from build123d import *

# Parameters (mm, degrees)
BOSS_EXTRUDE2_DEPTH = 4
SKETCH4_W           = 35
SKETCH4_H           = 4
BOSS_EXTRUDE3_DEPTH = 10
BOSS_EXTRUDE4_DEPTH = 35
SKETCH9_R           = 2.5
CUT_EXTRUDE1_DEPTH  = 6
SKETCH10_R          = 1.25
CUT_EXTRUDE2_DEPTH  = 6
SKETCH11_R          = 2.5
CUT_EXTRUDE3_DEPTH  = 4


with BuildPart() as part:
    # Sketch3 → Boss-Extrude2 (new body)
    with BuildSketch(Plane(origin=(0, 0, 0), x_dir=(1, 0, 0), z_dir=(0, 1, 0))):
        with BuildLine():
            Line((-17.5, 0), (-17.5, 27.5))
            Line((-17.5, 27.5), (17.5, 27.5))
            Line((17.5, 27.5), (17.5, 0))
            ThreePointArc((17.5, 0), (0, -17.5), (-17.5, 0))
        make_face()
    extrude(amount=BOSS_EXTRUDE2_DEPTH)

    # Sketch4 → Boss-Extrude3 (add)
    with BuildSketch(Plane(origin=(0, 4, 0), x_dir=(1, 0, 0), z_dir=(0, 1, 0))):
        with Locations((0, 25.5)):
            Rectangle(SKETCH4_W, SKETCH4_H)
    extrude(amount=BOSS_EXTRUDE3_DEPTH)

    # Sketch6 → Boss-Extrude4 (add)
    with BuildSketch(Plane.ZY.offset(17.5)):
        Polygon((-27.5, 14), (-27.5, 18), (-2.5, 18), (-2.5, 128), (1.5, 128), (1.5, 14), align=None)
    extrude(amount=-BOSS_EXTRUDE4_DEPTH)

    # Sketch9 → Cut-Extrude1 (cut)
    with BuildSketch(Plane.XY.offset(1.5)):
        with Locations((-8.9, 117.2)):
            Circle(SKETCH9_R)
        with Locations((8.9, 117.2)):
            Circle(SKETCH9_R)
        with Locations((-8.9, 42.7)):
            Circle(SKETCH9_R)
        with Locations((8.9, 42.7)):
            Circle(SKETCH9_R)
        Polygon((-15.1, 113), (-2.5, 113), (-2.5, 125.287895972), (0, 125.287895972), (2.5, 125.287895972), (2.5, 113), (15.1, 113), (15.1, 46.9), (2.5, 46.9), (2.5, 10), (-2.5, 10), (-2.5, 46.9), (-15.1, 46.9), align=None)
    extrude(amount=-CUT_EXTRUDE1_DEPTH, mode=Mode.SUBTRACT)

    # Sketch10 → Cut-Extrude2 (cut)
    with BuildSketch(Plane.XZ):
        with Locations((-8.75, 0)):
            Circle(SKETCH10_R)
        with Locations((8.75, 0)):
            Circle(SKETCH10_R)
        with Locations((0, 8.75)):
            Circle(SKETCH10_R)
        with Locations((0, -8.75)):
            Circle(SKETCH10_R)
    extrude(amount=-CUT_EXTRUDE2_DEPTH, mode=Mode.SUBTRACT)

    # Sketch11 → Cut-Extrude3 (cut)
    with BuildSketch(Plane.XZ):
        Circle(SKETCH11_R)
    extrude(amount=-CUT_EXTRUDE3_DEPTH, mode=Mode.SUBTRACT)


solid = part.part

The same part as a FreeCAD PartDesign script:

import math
import FreeCAD as App
import Part
import Sketcher

V = App.Vector
Q = App.Units.Quantity

doc = App.newDocument("Part")
body = doc.addObject("PartDesign::Body", "Body")

# Sketch on XZ plane
sketch1 = doc.addObject("Sketcher::SketchObject", "Sketch")
body.addObject(sketch1)
sketch1.AttachmentSupport = (doc.XZ_Plane, [""])
sketch1.MapMode = "FlatFace"
sketch1.addGeometry([
    Part.LineSegment(V(-17.5, -27.5, 0), V(-17.5, 0, 0)),
    Part.ArcOfCircle(Part.Circle(V(0, 0, 0), V(0, 0, 1), 17.5), math.radians(0), math.radians(180)),
    Part.LineSegment(V(17.5, 0, 0), V(17.5, -27.5, 0)),
    Part.LineSegment(V(17.5, -27.5, 0), V(-17.5, -27.5, 0)),
], False)
sketch1.addConstraint([
    Sketcher.Constraint("Tangent", 0, 2, 1, 2),
    Sketcher.Constraint("Tangent", 1, 1, 2, 1),
    Sketcher.Constraint("Coincident", 2, 2, 3, 1),
    Sketcher.Constraint("Coincident", 3, 2, 0, 1),
    Sketcher.Constraint("Vertical", 0),
    Sketcher.Constraint("Vertical", 2),
    Sketcher.Constraint("Horizontal", 3),
    Sketcher.Constraint("Coincident", 1, 3, -1, 1),
    Sketcher.Constraint("Radius", 1, Q("17.5 mm")),
    Sketcher.Constraint("DistanceY", 0, 1, 0, 2, Q("27.5 mm")),
])
pad1 = doc.addObject("PartDesign::Pad", "Pad")
body.addObject(pad1)
pad1.Profile = sketch1
pad1.Length = 4
pad1.Reversed = True

# Sketch on XZ plane
sketch2 = doc.addObject("Sketcher::SketchObject", "Sketch001")
body.addObject(sketch2)
sketch2.AttachmentSupport = (doc.XZ_Plane, [""])
sketch2.MapMode = "FlatFace"
sketch2.AttachmentOffset = App.Placement(V(0, 0, -4), App.Rotation())
sketch2.addGeometry([
    Part.LineSegment(V(-17.5, -27.5, 0), V(-17.5, -23.5, 0)),
    Part.LineSegment(V(-17.5, -23.5, 0), V(17.5, -23.5, 0)),
    Part.LineSegment(V(17.5, -23.5, 0), V(17.5, -27.5, 0)),
    Part.LineSegment(V(17.5, -27.5, 0), V(-17.5, -27.5, 0)),
], False)
sketch2.addConstraint([
    Sketcher.Constraint("Coincident", 0, 2, 1, 1),
    Sketcher.Constraint("Coincident", 1, 2, 2, 1),
    Sketcher.Constraint("Coincident", 2, 2, 3, 1),
    Sketcher.Constraint("Coincident", 3, 2, 0, 1),
    Sketcher.Constraint("Vertical", 0),
    Sketcher.Constraint("Horizontal", 1),
    Sketcher.Constraint("Vertical", 2),
    Sketcher.Constraint("Horizontal", 3),
    Sketcher.Constraint("DistanceX", 1, 1, 1, 2, Q("35 mm")),
    Sketcher.Constraint("DistanceY", 0, 1, 0, 2, Q("4 mm")),
    Sketcher.Constraint("DistanceX", 0, 2, -1, 1, Q("17.5 mm")),
    Sketcher.Constraint("DistanceY", 0, 2, -1, 1, Q("23.5 mm")),
])
pad2 = doc.addObject("PartDesign::Pad", "Pad001")
body.addObject(pad2)
pad2.Profile = sketch2
pad2.Length = 10
pad2.Reversed = True

# Sketch on YZ plane
sketch3 = doc.addObject("Sketcher::SketchObject", "Sketch002")
body.addObject(sketch3)
sketch3.AttachmentSupport = (doc.YZ_Plane, [""])
sketch3.MapMode = "FlatFace"
sketch3.AttachmentOffset = App.Placement(V(0, 0, -17.5), App.Rotation())
sketch3.addGeometry([
    Part.LineSegment(V(18, -27.5, 0), V(14, -27.5, 0)),  # 0
    Part.LineSegment(V(14, -27.5, 0), V(14, 1.5, 0)),  # 1
    Part.LineSegment(V(14, 1.5, 0), V(128, 1.5, 0)),  # 2
    Part.LineSegment(V(128, 1.5, 0), V(128, -2.5, 0)),  # 3
    Part.LineSegment(V(128, -2.5, 0), V(18, -2.5, 0)),  # 4
    Part.LineSegment(V(18, -2.5, 0), V(18, -27.5, 0)),  # 5
], False)
sketch3.addConstraint([
    Sketcher.Constraint("Coincident", 0, 2, 1, 1),
    Sketcher.Constraint("Coincident", 1, 2, 2, 1),
    Sketcher.Constraint("Coincident", 2, 2, 3, 1),
    Sketcher.Constraint("Coincident", 3, 2, 4, 1),
    Sketcher.Constraint("Coincident", 4, 2, 5, 1),
    Sketcher.Constraint("Coincident", 5, 2, 0, 1),
    Sketcher.Constraint("Horizontal", 0),
    Sketcher.Constraint("Vertical", 1),
    Sketcher.Constraint("Horizontal", 2),
    Sketcher.Constraint("Vertical", 3),
    Sketcher.Constraint("Horizontal", 4),
    Sketcher.Constraint("Vertical", 5),
    Sketcher.Constraint("Equal", 0, 3),
    Sketcher.Constraint("DistanceX", 0, 2, 0, 1, Q("4 mm")),
    Sketcher.Constraint("DistanceX", 2, 1, 2, 2, Q("114 mm")),
    Sketcher.Constraint("DistanceY", 1, 1, 1, 2, Q("29 mm")),
    Sketcher.Constraint("DistanceX", -1, 1, 0, 2, Q("14 mm")),
    Sketcher.Constraint("DistanceY", 0, 2, -1, 1, Q("27.5 mm")),
])
pad3 = doc.addObject("PartDesign::Pad", "Pad002")
body.addObject(pad3)
pad3.Profile = sketch3
pad3.Length = 35

# Sketch on XY plane
sketch4 = doc.addObject("Sketcher::SketchObject", "Sketch003")
body.addObject(sketch4)
sketch4.AttachmentSupport = (doc.XY_Plane, [""])
sketch4.MapMode = "FlatFace"
sketch4.AttachmentOffset = App.Placement(V(0, 0, 1.5), App.Rotation())
sketch4.addGeometry([
    Part.Circle(V(-8.9, 117.2, 0), V(0, 0, 1), 2.5),  # 0
    Part.Circle(V(8.9, 117.2, 0), V(0, 0, 1), 2.5),  # 1
    Part.Circle(V(-8.9, 42.7, 0), V(0, 0, 1), 2.5),  # 2
    Part.Circle(V(8.9, 42.7, 0), V(0, 0, 1), 2.5),  # 3
    Part.LineSegment(V(-2.5, 113, 0), V(-15.1, 113, 0)),  # 4
    Part.LineSegment(V(-15.1, 113, 0), V(-15.1, 46.9, 0)),  # 5
    Part.LineSegment(V(-15.1, 46.9, 0), V(-2.5, 46.9, 0)),  # 6
    Part.LineSegment(V(-2.5, 46.9, 0), V(-2.5, 10, 0)),  # 7
    Part.LineSegment(V(-2.5, 10, 0), V(2.5, 10, 0)),  # 8
    Part.LineSegment(V(2.5, 10, 0), V(2.5, 46.9, 0)),  # 9
    Part.LineSegment(V(2.5, 46.9, 0), V(15.1, 46.9, 0)),  # 10
    Part.LineSegment(V(15.1, 46.9, 0), V(15.1, 113, 0)),  # 11
    Part.LineSegment(V(15.1, 113, 0), V(2.5, 113, 0)),  # 12
    Part.LineSegment(V(2.5, 113, 0), V(2.5, 125.287896, 0)),  # 13
    Part.LineSegment(V(2.5, 125.287896, 0), V(-2.5, 125.287896, 0)),  # 14
    Part.LineSegment(V(-2.5, 125.287896, 0), V(-2.5, 113, 0)),  # 15
], False)
sketch4.addConstraint([
    Sketcher.Constraint("Coincident", 4, 2, 5, 1),
    Sketcher.Constraint("Coincident", 5, 2, 6, 1),
    Sketcher.Constraint("Coincident", 6, 2, 7, 1),
    Sketcher.Constraint("Coincident", 7, 2, 8, 1),
    Sketcher.Constraint("Coincident", 8, 2, 9, 1),
    Sketcher.Constraint("Coincident", 9, 2, 10, 1),
    Sketcher.Constraint("Coincident", 10, 2, 11, 1),
    Sketcher.Constraint("Coincident", 11, 2, 12, 1),
    Sketcher.Constraint("Coincident", 12, 2, 13, 1),
    Sketcher.Constraint("Coincident", 13, 2, 14, 1),
    Sketcher.Constraint("Coincident", 14, 2, 15, 1),
    Sketcher.Constraint("Coincident", 15, 2, 4, 1),
    Sketcher.Constraint("Horizontal", 4),
    Sketcher.Constraint("Vertical", 5),
    Sketcher.Constraint("Horizontal", 6),
    Sketcher.Constraint("Vertical", 7),
    Sketcher.Constraint("Horizontal", 8),
    Sketcher.Constraint("Vertical", 9),
    Sketcher.Constraint("Horizontal", 10),
    Sketcher.Constraint("Vertical", 11),
    Sketcher.Constraint("Horizontal", 12),
    Sketcher.Constraint("Vertical", 13),
    Sketcher.Constraint("Horizontal", 14),
    Sketcher.Constraint("Vertical", 15),
    Sketcher.Constraint("Equal", 0, 1),
    Sketcher.Constraint("Equal", 1, 2),
    Sketcher.Constraint("Equal", 2, 3),
    Sketcher.Constraint("Symmetric", 0, 3, 1, 3, -2),
    Sketcher.Constraint("Symmetric", 2, 3, 3, 3, -2),
    Sketcher.Constraint("Symmetric", 6, 2, 9, 2, -2),
    Sketcher.Constraint("Symmetric", 4, 2, 11, 2, -2),
    Sketcher.Constraint("Vertical", 0, 3, 2, 3),
    Sketcher.Constraint("Vertical", 9, 2, 12, 2),
    Sketcher.Constraint("Vertical", 7, 2, 14, 2),
    Sketcher.Constraint("Diameter", 0, Q("5 mm")),
    Sketcher.Constraint("DistanceX", 8, 1, 8, 2, Q("5 mm")),
    Sketcher.Constraint("DistanceX", 4, 2, 4, 1, Q("12.6 mm")),
    Sketcher.Constraint("DistanceY", 5, 2, 5, 1, Q("66.1 mm")),
    Sketcher.Constraint("DistanceY", 7, 2, 7, 1, Q("36.9 mm")),
    Sketcher.Constraint("DistanceY", -1, 1, 4, 2, Q("113 mm")),
    Sketcher.Constraint("DistanceX", 4, 2, 1, 3, Q("24 mm")),
    Sketcher.Constraint("DistanceY", -1, 1, 0, 3, Q("117.2 mm")),
    Sketcher.Constraint("DistanceY", -1, 1, 2, 3, Q("42.7 mm")),
    Sketcher.Constraint("DistanceY", 13, 1, 13, 2, Q("12.287896 mm")),
])
pocket1 = doc.addObject("PartDesign::Pocket", "Pocket")
body.addObject(pocket1)
pocket1.Profile = sketch4
pocket1.Length = 6

# Sketch on XZ plane
sketch5 = doc.addObject("Sketcher::SketchObject", "Sketch004")
body.addObject(sketch5)
sketch5.AttachmentSupport = (doc.XZ_Plane, [""])
sketch5.MapMode = "FlatFace"
sketch5.addGeometry([
    Part.Circle(V(-8.75, 0, 0), V(0, 0, 1), 1.25),
    Part.Circle(V(8.75, 0, 0), V(0, 0, 1), 1.25),
    Part.Circle(V(0, 8.75, 0), V(0, 0, 1), 1.25),
    Part.Circle(V(0, -8.75, 0), V(0, 0, 1), 1.25),
], False)
sketch5.addConstraint([
    Sketcher.Constraint("Equal", 0, 1),
    Sketcher.Constraint("Equal", 1, 2),
    Sketcher.Constraint("Equal", 2, 3),
    Sketcher.Constraint("Symmetric", 0, 3, 1, 3, -1, 1),
    Sketcher.Constraint("Symmetric", 2, 3, 3, 3, -1, 1),
    Sketcher.Constraint("PointOnObject", 0, 3, -1),
    Sketcher.Constraint("PointOnObject", 2, 3, -2),
    Sketcher.Constraint("Diameter", 0, Q("2.5 mm")),
    Sketcher.Constraint("DistanceX", 0, 3, 1, 3, Q("17.5 mm")),
    Sketcher.Constraint("DistanceY", 3, 3, 2, 3, Q("17.5 mm")),
])
pocket2 = doc.addObject("PartDesign::Pocket", "Pocket001")
body.addObject(pocket2)
pocket2.Profile = sketch5
pocket2.Length = 6

# Sketch on XZ plane
sketch6 = doc.addObject("Sketcher::SketchObject", "Sketch005")
body.addObject(sketch6)
sketch6.AttachmentSupport = (doc.XZ_Plane, [""])
sketch6.MapMode = "FlatFace"
sketch6.addGeometry(Part.Circle(V(0, 0, 0), V(0, 0, 1), 2.5), False)
sketch6.addConstraint([
    Sketcher.Constraint("Coincident", 0, 3, -1, 1),
    Sketcher.Constraint("Diameter", 0, Q("5 mm")),
])
pocket3 = doc.addObject("PartDesign::Pocket", "Pocket002")
body.addObject(pocket3)
pocket3.Profile = sketch6
pocket3.Length = 4

doc.recompute()
